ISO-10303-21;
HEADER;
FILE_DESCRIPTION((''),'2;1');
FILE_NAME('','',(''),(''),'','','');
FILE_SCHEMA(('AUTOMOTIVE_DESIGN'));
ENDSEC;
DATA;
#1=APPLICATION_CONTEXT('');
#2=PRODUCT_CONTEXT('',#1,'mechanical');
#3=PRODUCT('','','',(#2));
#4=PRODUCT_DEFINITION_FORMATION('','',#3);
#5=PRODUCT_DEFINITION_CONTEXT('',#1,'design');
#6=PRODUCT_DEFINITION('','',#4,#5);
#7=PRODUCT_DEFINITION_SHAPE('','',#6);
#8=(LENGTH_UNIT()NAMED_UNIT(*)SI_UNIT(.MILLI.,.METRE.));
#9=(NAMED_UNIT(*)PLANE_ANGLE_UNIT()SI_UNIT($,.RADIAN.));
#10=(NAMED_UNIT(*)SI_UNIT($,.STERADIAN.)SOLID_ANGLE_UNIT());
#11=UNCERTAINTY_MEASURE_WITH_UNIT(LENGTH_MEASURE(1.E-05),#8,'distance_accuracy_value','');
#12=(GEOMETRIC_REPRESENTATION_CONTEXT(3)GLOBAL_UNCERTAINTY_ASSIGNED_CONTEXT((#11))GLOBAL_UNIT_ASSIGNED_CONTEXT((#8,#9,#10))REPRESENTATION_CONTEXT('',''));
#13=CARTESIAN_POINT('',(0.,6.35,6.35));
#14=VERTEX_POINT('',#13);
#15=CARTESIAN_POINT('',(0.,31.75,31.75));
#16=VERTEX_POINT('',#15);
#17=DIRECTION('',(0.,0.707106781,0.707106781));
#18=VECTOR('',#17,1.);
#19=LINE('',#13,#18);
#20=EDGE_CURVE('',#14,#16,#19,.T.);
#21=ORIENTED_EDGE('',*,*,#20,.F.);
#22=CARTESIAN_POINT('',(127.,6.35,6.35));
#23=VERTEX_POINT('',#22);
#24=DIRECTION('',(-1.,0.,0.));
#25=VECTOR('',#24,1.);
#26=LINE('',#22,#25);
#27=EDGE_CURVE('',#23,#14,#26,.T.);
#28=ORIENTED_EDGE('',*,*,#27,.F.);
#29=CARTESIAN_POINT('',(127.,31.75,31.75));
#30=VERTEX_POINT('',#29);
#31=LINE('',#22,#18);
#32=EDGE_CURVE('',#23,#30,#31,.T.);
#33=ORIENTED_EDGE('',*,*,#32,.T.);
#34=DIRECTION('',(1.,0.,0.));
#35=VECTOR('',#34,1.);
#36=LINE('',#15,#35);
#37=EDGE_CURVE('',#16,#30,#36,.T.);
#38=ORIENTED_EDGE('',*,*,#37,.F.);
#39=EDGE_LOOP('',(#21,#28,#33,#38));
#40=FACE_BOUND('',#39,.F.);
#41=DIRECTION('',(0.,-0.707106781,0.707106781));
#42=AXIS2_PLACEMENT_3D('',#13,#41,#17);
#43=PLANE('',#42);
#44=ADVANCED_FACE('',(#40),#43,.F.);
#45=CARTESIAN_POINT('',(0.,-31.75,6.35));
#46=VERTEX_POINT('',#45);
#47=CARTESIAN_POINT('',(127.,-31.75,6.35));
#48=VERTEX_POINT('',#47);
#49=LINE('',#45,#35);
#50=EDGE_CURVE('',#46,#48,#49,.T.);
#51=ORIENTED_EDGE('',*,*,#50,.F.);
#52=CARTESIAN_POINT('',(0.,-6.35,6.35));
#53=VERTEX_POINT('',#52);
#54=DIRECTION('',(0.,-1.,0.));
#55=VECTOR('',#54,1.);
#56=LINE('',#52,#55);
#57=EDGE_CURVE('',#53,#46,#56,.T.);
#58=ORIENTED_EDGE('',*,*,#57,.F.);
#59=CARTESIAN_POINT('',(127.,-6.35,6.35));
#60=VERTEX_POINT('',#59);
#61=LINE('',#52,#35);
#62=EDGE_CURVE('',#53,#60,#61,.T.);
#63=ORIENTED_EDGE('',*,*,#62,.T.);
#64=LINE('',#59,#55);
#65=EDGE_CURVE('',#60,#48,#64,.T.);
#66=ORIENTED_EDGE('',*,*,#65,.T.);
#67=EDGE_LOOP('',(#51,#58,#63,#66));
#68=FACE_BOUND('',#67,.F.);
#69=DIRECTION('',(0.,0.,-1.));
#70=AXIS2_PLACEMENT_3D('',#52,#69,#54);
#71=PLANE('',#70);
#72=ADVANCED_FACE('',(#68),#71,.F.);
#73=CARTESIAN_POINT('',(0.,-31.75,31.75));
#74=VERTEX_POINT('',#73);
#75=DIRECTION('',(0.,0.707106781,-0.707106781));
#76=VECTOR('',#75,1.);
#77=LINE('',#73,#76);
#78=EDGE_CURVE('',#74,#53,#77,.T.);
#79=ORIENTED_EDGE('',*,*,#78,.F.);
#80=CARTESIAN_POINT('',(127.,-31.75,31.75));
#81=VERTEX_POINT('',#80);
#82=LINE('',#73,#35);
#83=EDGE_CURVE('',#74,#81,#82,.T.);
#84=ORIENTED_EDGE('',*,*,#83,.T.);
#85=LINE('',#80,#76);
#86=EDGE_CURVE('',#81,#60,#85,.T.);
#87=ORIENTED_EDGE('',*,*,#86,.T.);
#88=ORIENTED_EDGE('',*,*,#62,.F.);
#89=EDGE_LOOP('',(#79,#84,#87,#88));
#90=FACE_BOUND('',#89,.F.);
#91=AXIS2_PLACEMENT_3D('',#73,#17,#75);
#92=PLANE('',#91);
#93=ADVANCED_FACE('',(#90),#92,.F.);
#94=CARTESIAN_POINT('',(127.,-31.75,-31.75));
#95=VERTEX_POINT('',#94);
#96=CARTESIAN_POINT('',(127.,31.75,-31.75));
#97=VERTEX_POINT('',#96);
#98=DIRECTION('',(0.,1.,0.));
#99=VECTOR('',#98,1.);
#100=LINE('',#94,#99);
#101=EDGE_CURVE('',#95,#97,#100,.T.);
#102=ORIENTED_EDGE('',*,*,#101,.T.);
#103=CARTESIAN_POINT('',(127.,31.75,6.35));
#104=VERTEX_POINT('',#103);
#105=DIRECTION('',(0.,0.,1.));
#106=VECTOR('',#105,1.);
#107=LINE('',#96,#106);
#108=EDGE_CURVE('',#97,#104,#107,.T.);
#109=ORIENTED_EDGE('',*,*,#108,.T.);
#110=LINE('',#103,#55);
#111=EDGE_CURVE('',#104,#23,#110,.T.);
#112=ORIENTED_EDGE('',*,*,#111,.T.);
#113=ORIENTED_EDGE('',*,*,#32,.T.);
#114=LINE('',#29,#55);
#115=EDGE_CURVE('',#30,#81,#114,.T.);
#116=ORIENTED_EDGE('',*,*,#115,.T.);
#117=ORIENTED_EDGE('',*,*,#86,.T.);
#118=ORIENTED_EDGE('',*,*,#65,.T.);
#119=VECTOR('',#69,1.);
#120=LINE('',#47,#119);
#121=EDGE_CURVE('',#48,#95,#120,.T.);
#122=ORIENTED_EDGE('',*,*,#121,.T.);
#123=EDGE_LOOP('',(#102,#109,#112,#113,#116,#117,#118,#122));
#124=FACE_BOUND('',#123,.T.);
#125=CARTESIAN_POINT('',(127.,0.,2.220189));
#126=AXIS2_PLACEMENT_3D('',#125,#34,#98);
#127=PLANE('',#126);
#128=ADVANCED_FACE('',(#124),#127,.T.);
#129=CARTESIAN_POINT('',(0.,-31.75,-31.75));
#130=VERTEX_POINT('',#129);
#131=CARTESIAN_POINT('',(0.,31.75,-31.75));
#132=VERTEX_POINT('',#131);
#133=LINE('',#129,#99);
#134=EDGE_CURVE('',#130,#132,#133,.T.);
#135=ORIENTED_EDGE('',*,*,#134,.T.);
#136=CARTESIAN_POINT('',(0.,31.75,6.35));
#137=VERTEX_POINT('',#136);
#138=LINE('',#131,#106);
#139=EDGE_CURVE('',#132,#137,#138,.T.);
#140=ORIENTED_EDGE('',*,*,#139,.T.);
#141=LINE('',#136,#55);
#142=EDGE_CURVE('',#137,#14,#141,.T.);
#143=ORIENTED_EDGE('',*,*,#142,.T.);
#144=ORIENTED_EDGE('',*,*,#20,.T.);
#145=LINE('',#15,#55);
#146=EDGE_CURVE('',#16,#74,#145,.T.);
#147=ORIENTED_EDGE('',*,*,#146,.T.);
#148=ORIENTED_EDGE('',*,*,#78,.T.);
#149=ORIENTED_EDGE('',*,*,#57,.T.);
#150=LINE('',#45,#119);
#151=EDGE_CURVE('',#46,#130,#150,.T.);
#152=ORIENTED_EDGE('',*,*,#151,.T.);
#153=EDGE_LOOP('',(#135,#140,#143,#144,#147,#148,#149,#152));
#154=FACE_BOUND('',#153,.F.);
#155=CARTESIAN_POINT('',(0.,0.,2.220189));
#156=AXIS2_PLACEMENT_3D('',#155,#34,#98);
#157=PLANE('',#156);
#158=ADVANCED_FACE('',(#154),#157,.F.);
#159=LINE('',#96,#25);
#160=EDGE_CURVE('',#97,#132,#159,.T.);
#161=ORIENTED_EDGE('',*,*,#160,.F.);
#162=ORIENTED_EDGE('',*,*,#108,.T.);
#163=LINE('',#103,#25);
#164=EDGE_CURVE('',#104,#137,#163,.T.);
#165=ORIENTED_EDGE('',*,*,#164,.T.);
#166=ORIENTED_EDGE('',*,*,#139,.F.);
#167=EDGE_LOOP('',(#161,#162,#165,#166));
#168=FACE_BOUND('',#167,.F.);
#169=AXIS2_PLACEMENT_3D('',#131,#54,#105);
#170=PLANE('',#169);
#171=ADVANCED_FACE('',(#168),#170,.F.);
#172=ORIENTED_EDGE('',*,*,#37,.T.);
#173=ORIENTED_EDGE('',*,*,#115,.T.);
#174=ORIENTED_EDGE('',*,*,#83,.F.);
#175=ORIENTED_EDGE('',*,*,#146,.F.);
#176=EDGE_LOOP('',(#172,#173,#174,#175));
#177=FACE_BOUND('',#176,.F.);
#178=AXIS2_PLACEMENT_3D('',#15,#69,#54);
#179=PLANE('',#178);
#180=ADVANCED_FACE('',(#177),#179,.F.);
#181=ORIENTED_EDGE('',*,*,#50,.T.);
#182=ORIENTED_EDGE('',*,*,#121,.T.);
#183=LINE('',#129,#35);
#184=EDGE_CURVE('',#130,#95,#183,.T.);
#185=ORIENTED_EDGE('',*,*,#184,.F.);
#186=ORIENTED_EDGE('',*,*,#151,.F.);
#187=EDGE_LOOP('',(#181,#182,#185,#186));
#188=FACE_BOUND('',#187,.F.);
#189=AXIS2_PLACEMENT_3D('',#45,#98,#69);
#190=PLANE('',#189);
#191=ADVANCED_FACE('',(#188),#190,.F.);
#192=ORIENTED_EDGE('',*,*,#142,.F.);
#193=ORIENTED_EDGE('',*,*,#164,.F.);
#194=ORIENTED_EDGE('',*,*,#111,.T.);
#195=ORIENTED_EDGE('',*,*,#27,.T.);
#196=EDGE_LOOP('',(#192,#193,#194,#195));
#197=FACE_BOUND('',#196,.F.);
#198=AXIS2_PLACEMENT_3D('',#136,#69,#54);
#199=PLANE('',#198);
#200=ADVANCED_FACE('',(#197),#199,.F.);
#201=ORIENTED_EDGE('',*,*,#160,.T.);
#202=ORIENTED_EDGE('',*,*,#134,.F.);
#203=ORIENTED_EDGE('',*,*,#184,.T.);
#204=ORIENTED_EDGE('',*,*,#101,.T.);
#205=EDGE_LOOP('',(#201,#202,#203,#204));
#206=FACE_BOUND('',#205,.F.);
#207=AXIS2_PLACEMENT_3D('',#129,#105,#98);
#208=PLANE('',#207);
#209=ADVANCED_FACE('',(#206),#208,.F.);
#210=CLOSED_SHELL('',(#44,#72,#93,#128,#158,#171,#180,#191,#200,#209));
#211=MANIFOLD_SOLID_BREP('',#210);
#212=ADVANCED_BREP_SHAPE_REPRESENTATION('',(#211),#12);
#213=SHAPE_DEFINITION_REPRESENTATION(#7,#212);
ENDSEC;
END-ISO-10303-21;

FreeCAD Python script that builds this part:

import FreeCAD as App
import Part
import Sketcher

V = App.Vector
Q = App.Units.Quantity


def add_polygon(sketch, points):
    """Adds a closed chain of lines whose ends are joined by coincident constraints."""
    first, n = sketch.GeometryCount, len(points)
    for a, b in zip(points, points[1:] + points[:1]):
        sketch.addGeometry(Part.LineSegment(App.Vector(*a, 0), App.Vector(*b, 0)), False)
    for i in range(n):
        sketch.addConstraint(Sketcher.Constraint("Coincident", first + i, 2, first + (i + 1) % n, 1))

doc = App.newDocument("Part")
body = doc.addObject("PartDesign::Body", "Body")

sketch1 = doc.addObject("Sketcher::SketchObject", "Sketch")
body.addObject(sketch1)
sketch1.AttachmentSupport = (doc.YZ_Plane, [""])
sketch1.MapMode = "FlatFace"
add_polygon(sketch1, [(6, 6), (32, 32), (-32, 32), (-6, 6), (-32, 6), (-32, -32), (32, -32), (32, 6)])
sketch1.addConstraint([
    Sketcher.Constraint("Horizontal", 1),
    Sketcher.Constraint("Horizontal", 3),
    Sketcher.Constraint("Vertical", 4),
    Sketcher.Constraint("Horizontal", 5),
    Sketcher.Constraint("Vertical", 6),
    Sketcher.Constraint("Horizontal", 7),
    Sketcher.Constraint("Symmetric", 0, 2, 4, 2, -1, 1),
    Sketcher.Constraint("Symmetric", 3, 2, 6, 2, -2),
    Sketcher.Constraint("Perpendicular", 0, 2),
    Sketcher.Constraint("Vertical", 1, 2, 3, 2),
    Sketcher.Constraint("Equal", 3, 7),
    Sketcher.Constraint("DistanceX", 3, 2, 3, 1, Q("1 in")),
    Sketcher.Constraint("DistanceX", 1, 2, 1, 1, Q("2.5 in")),
    Sketcher.Constraint("DistanceY", 4, 2, 4, 1, Q("1.5 in")),
])
pad1 = doc.addObject("PartDesign::Pad", "Pad")
body.addObject(pad1)
pad1.Profile = sketch1
pad1.Length = Q("4 in")

sketch2 = doc.addObject("Sketcher::SketchObject", "Sketch001")
body.addObject(sketch2)
sketch2.AttachmentSupport = (doc.YZ_Plane, [""])
sketch2.MapMode = "FlatFace"
add_polygon(sketch2, [(6, 6), (32, 32), (-32, 32), (-6, 6), (-32, 6), (-32, -32), (32, -32), (32, 6)])
sketch2.addConstraint([
    Sketcher.Constraint("Horizontal", 1),
    Sketcher.Constraint("Horizontal", 3),
    Sketcher.Constraint("Vertical", 4),
    Sketcher.Constraint("Horizontal", 5),
    Sketcher.Constraint("Vertical", 6),
    Sketcher.Constraint("Horizontal", 7),
    Sketcher.Constraint("Symmetric", 0, 2, 4, 2, -1, 1),
    Sketcher.Constraint("Symmetric", 3, 2, 6, 2, -2),
    Sketcher.Constraint("Perpendicular", 0, 2),
    Sketcher.Constraint("Vertical", 1, 2, 3, 2),
    Sketcher.Constraint("Equal", 3, 7),
    Sketcher.Constraint("DistanceX", 3, 2, 3, 1, Q("1 in")),
    Sketcher.Constraint("DistanceX", 1, 2, 1, 1, Q("2.5 in")),
    Sketcher.Constraint("DistanceY", 4, 2, 4, 1, Q("1.5 in")),
])
pad2 = doc.addObject("PartDesign::Pad", "Pad001")
body.addObject(pad2)
pad2.Profile = sketch2
pad2.Length = Q("5 in")

doc.recompute()
